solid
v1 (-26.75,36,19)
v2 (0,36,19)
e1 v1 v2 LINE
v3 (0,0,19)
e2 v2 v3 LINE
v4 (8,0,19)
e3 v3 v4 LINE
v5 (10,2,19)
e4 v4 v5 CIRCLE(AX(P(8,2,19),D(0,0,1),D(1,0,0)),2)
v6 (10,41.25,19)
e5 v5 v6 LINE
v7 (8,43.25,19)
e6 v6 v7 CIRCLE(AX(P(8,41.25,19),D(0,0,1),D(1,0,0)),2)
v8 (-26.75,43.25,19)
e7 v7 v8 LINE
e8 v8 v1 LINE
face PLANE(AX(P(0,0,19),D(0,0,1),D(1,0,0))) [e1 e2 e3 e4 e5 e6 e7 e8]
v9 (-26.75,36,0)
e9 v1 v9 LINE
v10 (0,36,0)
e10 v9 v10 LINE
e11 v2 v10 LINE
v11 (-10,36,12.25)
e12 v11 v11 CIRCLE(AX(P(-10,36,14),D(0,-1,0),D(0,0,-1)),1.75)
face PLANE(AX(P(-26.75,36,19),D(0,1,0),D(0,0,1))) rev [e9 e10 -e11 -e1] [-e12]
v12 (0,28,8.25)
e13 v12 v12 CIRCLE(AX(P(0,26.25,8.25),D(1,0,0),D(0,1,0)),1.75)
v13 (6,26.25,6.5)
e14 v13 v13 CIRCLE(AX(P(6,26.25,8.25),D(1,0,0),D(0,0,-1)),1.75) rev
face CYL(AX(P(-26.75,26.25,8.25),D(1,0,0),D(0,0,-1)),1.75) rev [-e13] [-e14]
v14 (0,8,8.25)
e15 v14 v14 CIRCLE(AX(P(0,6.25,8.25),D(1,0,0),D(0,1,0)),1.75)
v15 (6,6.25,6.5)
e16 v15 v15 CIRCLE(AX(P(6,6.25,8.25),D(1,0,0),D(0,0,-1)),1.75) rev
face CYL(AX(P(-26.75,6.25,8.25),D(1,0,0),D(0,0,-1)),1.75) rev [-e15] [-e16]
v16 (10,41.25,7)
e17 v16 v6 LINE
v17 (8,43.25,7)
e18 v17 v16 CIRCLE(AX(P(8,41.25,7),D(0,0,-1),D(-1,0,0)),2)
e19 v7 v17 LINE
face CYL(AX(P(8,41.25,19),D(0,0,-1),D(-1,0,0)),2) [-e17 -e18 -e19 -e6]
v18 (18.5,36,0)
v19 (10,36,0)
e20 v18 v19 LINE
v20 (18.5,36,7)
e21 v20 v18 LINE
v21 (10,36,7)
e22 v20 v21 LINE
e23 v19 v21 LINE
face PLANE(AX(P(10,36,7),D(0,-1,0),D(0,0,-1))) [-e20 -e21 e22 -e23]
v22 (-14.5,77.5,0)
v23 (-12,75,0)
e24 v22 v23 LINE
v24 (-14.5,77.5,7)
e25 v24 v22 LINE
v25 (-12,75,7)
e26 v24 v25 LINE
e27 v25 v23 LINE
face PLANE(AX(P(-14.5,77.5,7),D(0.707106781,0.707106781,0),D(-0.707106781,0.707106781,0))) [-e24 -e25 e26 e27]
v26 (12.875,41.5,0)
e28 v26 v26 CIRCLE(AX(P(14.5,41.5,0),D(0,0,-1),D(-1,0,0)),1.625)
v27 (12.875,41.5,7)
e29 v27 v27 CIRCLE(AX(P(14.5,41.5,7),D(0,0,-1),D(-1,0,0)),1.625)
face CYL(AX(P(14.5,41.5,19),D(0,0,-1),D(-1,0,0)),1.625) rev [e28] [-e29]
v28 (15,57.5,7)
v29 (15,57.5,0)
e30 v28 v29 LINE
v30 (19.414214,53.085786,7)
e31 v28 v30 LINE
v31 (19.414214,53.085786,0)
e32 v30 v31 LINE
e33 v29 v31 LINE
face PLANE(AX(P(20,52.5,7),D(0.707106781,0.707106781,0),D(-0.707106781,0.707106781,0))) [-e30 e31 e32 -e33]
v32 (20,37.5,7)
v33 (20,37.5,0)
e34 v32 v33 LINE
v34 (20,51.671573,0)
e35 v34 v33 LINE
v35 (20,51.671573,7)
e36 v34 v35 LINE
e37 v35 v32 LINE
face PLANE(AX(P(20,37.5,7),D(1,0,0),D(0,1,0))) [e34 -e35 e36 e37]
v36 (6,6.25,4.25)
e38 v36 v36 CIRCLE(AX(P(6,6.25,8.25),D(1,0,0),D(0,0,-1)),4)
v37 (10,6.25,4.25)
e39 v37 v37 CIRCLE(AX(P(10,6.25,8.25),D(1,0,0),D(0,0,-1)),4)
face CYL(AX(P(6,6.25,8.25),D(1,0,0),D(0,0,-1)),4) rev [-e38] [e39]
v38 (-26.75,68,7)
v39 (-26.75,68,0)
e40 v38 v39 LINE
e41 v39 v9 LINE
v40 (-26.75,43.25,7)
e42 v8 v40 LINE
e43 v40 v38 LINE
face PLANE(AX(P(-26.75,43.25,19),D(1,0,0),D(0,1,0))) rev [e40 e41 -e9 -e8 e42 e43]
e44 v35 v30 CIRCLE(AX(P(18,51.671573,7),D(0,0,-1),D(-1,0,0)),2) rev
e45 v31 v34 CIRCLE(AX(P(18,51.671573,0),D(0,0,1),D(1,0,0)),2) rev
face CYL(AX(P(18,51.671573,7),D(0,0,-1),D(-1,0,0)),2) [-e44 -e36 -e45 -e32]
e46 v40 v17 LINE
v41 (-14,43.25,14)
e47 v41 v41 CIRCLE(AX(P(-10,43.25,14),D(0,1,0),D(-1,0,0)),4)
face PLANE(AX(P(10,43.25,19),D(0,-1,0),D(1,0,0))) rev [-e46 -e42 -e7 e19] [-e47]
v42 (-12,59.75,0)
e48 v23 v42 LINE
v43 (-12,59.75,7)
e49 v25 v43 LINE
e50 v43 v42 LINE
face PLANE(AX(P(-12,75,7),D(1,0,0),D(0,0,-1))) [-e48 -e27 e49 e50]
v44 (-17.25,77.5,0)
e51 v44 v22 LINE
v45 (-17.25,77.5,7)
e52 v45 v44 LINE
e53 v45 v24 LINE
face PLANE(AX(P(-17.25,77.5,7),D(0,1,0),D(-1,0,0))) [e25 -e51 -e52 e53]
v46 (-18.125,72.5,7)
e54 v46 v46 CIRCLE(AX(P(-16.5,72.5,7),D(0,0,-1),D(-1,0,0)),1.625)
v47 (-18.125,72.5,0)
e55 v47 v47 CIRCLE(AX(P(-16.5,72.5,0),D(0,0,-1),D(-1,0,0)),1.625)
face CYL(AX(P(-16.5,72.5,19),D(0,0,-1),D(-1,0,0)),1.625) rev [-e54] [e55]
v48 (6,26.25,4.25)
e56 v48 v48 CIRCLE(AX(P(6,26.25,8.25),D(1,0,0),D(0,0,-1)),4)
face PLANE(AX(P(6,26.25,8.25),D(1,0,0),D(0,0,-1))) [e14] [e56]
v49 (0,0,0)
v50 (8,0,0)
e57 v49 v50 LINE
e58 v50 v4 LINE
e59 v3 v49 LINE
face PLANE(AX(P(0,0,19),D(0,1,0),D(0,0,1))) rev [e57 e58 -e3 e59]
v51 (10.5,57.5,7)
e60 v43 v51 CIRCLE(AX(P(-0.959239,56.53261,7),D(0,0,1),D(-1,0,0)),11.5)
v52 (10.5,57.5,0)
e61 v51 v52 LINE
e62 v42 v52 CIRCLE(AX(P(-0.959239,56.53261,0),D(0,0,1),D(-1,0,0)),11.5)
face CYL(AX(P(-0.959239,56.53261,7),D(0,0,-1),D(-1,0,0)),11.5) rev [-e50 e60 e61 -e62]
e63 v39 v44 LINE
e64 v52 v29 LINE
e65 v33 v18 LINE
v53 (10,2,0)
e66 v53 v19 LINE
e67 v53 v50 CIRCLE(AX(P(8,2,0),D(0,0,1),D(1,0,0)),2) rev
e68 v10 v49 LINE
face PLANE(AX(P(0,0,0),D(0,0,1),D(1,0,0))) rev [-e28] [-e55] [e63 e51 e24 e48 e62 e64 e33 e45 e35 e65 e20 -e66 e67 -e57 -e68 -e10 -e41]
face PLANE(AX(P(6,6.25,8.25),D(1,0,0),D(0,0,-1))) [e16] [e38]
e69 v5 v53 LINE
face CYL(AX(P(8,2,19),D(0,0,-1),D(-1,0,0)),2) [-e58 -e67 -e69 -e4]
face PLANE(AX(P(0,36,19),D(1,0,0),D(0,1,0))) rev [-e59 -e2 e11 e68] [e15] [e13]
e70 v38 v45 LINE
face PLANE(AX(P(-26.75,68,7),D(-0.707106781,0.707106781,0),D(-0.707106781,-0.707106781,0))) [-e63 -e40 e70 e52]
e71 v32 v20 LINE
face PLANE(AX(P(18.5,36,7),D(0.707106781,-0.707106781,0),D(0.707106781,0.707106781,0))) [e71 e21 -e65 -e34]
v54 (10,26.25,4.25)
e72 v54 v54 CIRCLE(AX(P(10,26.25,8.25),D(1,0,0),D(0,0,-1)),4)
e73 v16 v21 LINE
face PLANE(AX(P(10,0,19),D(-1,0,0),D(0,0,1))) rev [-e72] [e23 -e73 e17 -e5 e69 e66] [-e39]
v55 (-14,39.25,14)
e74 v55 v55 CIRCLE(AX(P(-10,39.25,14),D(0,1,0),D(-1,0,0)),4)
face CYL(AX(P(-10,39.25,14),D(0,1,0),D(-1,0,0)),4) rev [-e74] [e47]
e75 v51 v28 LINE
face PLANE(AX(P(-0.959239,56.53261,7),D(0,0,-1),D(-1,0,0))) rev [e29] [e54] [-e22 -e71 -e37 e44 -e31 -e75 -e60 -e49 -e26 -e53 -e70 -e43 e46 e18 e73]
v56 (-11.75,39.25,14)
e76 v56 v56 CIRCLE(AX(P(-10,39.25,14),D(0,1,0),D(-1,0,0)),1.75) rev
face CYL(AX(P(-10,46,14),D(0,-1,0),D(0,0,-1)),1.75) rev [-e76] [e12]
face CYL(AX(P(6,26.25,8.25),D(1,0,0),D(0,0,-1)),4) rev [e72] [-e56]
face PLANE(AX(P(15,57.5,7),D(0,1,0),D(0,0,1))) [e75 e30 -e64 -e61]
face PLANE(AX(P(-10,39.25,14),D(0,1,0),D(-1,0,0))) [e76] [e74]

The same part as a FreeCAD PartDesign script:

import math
import FreeCAD as App
import Part
import Sketcher
Q = App.Units.Quantity


def edges_at(feature, points):
    """Names of the edges that pass closest to the given points."""
    edges = feature.Shape.Edges
    near = lambda p: min(range(len(edges)), key=lambda i: edges[i].distToShape(Part.Vertex(*p))[0])
    return sorted({f"Edge{near(p) + 1}" for p in points})


def add_polygon(sketch, points):
    """Adds a closed chain of lines whose ends are joined by coincident constraints."""
    first, n = sketch.GeometryCount, len(points)
    for a, b in zip(points, points[1:] + points[:1]):
        sketch.addGeometry(Part.LineSegment(App.Vector(*a, 0), App.Vector(*b, 0)), False)
    for i in range(n):
        sketch.addConstraint(Sketcher.Constraint("Coincident", first + i, 2, first + (i + 1) % n, 1))

doc = App.newDocument("Part")
body = doc.addObject("PartDesign::Body", "Body")

sketch1 = body.newObject("Sketcher::SketchObject", "Sketch")
sketch1.AttachmentSupport = (doc.getObject("XY_Plane"), [""])
sketch1.MapMode = "FlatFace"
add_polygon(sketch1, [(0, 0), (10, 0), (10, 43), (-27, 43), (-27, 36), (0, 36)])
sketch1.addConstraint([
    Sketcher.Constraint("Horizontal", 0),
    Sketcher.Constraint("Vertical", 1),
    Sketcher.Constraint("Horizontal", 2),
    Sketcher.Constraint("Vertical", 3),
    Sketcher.Constraint("Horizontal", 4),
    Sketcher.Constraint("Vertical", 5),
    Sketcher.Constraint("Coincident", 5, 2, -1, 1),
    Sketcher.Constraint("DistanceX", 0, 1, 0, 2, 10.0),
    Sketcher.Constraint("DistanceY", 5, 2, 5, 1, 36.0),
    Sketcher.Constraint("DistanceX", 2, 2, 2, 1, 36.75),
    Sketcher.Constraint("DistanceY", 1, 1, 1, 2, 43.25),
])
pad1 = body.newObject("PartDesign::Pad", "Pad")
pad1.Profile = sketch1
pad1.Length = 19

sketch2 = body.newObject("Sketcher::SketchObject", "Sketch001")
sketch2.AttachmentSupport = (doc.getObject("XY_Plane"), [""])
sketch2.MapMode = "FlatFace"
sketch2.addGeometry([
    Part.LineSegment(App.Vector(-26.8, 36, 0), App.Vector(-26.8, 68, 0)),
    Part.LineSegment(App.Vector(-26.8, 68, 0), App.Vector(-17.2, 77.5, 0)),
    Part.LineSegment(App.Vector(-17.2, 77.5, 0), App.Vector(-14.5, 77.5, 0)),
    Part.LineSegment(App.Vector(-14.5, 77.5, 0), App.Vector(-12, 75, 0)),
    Part.LineSegment(App.Vector(-12, 75, 0), App.Vector(-12, 59.8, 0)),
    Part.ArcOfCircle(Part.Circle(App.Vector(-1, 56.5, 0), App.Vector(0, 0, 1), 11.5), math.radians(164), math.radians(365)),
    Part.LineSegment(App.Vector(10.5, 57.5, 0), App.Vector(15, 57.5, 0)),
    Part.LineSegment(App.Vector(15, 57.5, 0), App.Vector(20, 52.5, 0)),
    Part.LineSegment(App.Vector(20, 52.5, 0), App.Vector(20, 37.5, 0)),
    Part.LineSegment(App.Vector(20, 37.5, 0), App.Vector(18.5, 36, 0)),
    Part.LineSegment(App.Vector(18.5, 36, 0), App.Vector(-26.8, 36, 0)),
], False)
sketch2.addConstraint([
    Sketcher.Constraint("Coincident", 0, 2, 1, 1),
    Sketcher.Constraint("Coincident", 1, 2, 2, 1),
    Sketcher.Constraint("Coincident", 2, 2, 3, 1),
    Sketcher.Constraint("Coincident", 3, 2, 4, 1),
    Sketcher.Constraint("Coincident", 4, 2, 5, 1),
    Sketcher.Constraint("Coincident", 5, 2, 6, 1),
    Sketcher.Constraint("Coincident", 6, 2, 7, 1),
    Sketcher.Constraint("Coincident", 7, 2, 8, 1),
    Sketcher.Constraint("Coincident", 8, 2, 9, 1),
    Sketcher.Constraint("Coincident", 9, 2, 10, 1),
    Sketcher.Constraint("Coincident", 10, 2, 0, 1),
    Sketcher.Constraint("Vertical", 0),
    Sketcher.Constraint("Horizontal", 2),
    Sketcher.Constraint("Vertical", 4),
    Sketcher.Constraint("Horizontal", 6),
    Sketcher.Constraint("Vertical", 8),
    Sketcher.Constraint("Horizontal", 10),
    Sketcher.Constraint("Perpendicular", 1, 3),
    Sketcher.Constraint("Parallel", 3, 7),
    Sketcher.Constraint("Perpendicular", 7, 9),
    Sketcher.Constraint("Radius", 5, 11.5),
    Sketcher.Constraint("DistanceY", 0, 1, 0, 2, 32.0),
    Sketcher.Constraint("DistanceY", 8, 2, 8, 1, 15.0),
    Sketcher.Constraint("Angle", 1, Q("45 deg")),
    Sketcher.Constraint("DistanceX", 6, 1, 6, 2, 4.5),
    Sketcher.Constraint("DistanceY", -1, 1, 0, 2, 68.0),
    Sketcher.Constraint("DistanceX", 3, 2, -1, 1, 12.0),
    Sketcher.Constraint("DistanceY", -1, 1, 3, 2, 75.0),
    Sketcher.Constraint("DistanceX", -1, 1, 6, 2, 15.0),
    Sketcher.Constraint("DistanceX", -1, 1, 7, 2, 20.0),
    Sketcher.Constraint("DistanceX", 2, 2, 5, 2, 25.0),
    Sketcher.Constraint("DistanceY", 5, 2, 2, 2, 20.0),
    Sketcher.Constraint("DistanceX", 2, 1, 2, 2, 2.75),
    Sketcher.Constraint("DistanceY", 4, 2, 4, 1, 15.25),
])
pad2 = body.newObject("PartDesign::Pad", "Pad001")
pad2.Profile = sketch2
pad2.Length = 7

sketch3 = body.newObject("Sketcher::SketchObject", "Sketch002")
sketch3.AttachmentSupport = (doc.getObject("YZ_Plane"), [""])
sketch3.MapMode = "FlatFace"
sketch3.AttachmentOffset = App.Placement(App.Vector(0, 0, 10), App.Rotation())
sketch3.addGeometry([
    Part.Circle(App.Vector(26.2, 8.2, 0), App.Vector(0, 0, 1), 1.8),
    Part.Circle(App.Vector(6.2, 8.2, 0), App.Vector(0, 0, 1), 1.8),
], False)
sketch3.addConstraint([
    Sketcher.Constraint("Equal", 0, 1),
    Sketcher.Constraint("Horizontal", 0, 3, 1, 3),
    Sketcher.Constraint("Diameter", 0, 3.5),
    Sketcher.Constraint("DistanceX", 1, 3, 0, 3, 20.0),
    Sketcher.Constraint("DistanceX", -1, 1, 0, 3, 26.25),
    Sketcher.Constraint("DistanceY", -1, 1, 0, 3, 8.25),
])
pocket1 = body.newObject("PartDesign::Pocket", "Pocket")
pocket1.Profile = sketch3
pocket1.Type = "ThroughAll"

sketch4 = body.newObject("Sketcher::SketchObject", "Sketch003")
sketch4.AttachmentSupport = (doc.getObject("YZ_Plane"), [""])
sketch4.MapMode = "FlatFace"
sketch4.AttachmentOffset = App.Placement(App.Vector(0, 0, 10), App.Rotation())
sketch4.addGeometry([
    Part.Circle(App.Vector(26.2, 8.2, 0), App.Vector(0, 0, 1), 4),
    Part.Circle(App.Vector(6.2, 8.2, 0), App.Vector(0, 0, 1), 4),
], False)
sketch4.addConstraint([
    Sketcher.Constraint("Equal", 0, 1),
    Sketcher.Constraint("Horizontal", 0, 3, 1, 3),
    Sketcher.Constraint("Diameter", 0, 8.0),
    Sketcher.Constraint("DistanceX", 1, 3, 0, 3, 20.0),
    Sketcher.Constraint("DistanceX", -1, 1, 0, 3, 26.25),
    Sketcher.Constraint("DistanceY", -1, 1, 0, 3, 8.25),
])
pocket2 = body.newObject("PartDesign::Pocket", "Pocket001")
pocket2.Profile = sketch4
pocket2.Length = 4

sketch5 = body.newObject("Sketcher::SketchObject", "Sketch004")
sketch5.AttachmentSupport = (doc.getObject("XY_Plane"), [""])
sketch5.MapMode = "FlatFace"
sketch5.addGeometry([
    Part.Circle(App.Vector(-16.5, 72.5, 0), App.Vector(0, 0, 1), 1.6),
    Part.Circle(App.Vector(14.5, 41.5, 0), App.Vector(0, 0, 1), 1.6),
], False)
sketch5.addConstraint([
    Sketcher.Constraint("Equal", 0, 1),
    Sketcher.Constraint("Diameter", 0, 3.25),
    Sketcher.Constraint("DistanceX", 0, 3, 1, 3, 31.0),
    Sketcher.Constraint("DistanceY", 1, 3, 0, 3, 31.0),
    Sketcher.Constraint("DistanceX", 0, 3, -1, 1, 16.5),
    Sketcher.Constraint("DistanceY", -1, 1, 0, 3, 72.5),
])
pocket3 = body.newObject("PartDesign::Pocket", "Pocket002")
pocket3.Profile = sketch5
pocket3.Type = "ThroughAll"
pocket3.Reversed = True
doc.recompute()

fillet = body.newObject("PartDesign::Fillet", "Fillet")
fillet.Base = (pocket3, edges_at(pocket3, [(10, 43.25, 13), (10, 0, 9.5), (20, 52.5, 3.5)]))
fillet.Radius = 2

sketch6 = body.newObject("Sketcher::SketchObject", "Sketch005")
sketch6.AttachmentSupport = (doc.getObject("XZ_Plane"), [""])
sketch6.MapMode = "FlatFace"
sketch6.AttachmentOffset = App.Placement(App.Vector(0, 0, -36), App.Rotation())
sketch6.addGeometry(Part.Circle(App.Vector(-10, 14, 0), App.Vector(0, 0, 1), 1.8), False)
sketch6.addConstraint([
    Sketcher.Constraint("Diameter", 0, 3.5),
    Sketcher.Constraint("DistanceX", 0, 3, -1, 1, 10.0),
    Sketcher.Constraint("DistanceY", -1, 1, 0, 3, 14.0),
])
pocket4 = body.newObject("PartDesign::Pocket", "Pocket003")
pocket4.Profile = sketch6
pocket4.Length = 10

sketch7 = body.newObject("Sketcher::SketchObject", "Sketch006")
sketch7.AttachmentSupport = (doc.getObject("XZ_Plane"), [""])
sketch7.MapMode = "FlatFace"
sketch7.AttachmentOffset = App.Placement(App.Vector(0, 0, -43.25), App.Rotation())
sketch7.addGeometry(Part.Circle(App.Vector(-10, 14, 0), App.Vector(0, 0, 1), 4), False)
sketch7.addConstraint([
    Sketcher.Constraint("Diameter", 0, 8.0),
    Sketcher.Constraint("DistanceX", 0, 3, -1, 1, 10.0),
    Sketcher.Constraint("DistanceY", -1, 1, 0, 3, 14.0),
])
pocket5 = body.newObject("PartDesign::Pocket", "Pocket004")
pocket5.Profile = sketch7
pocket5.Length = 4
pocket5.Reversed = True

doc.recompute()
